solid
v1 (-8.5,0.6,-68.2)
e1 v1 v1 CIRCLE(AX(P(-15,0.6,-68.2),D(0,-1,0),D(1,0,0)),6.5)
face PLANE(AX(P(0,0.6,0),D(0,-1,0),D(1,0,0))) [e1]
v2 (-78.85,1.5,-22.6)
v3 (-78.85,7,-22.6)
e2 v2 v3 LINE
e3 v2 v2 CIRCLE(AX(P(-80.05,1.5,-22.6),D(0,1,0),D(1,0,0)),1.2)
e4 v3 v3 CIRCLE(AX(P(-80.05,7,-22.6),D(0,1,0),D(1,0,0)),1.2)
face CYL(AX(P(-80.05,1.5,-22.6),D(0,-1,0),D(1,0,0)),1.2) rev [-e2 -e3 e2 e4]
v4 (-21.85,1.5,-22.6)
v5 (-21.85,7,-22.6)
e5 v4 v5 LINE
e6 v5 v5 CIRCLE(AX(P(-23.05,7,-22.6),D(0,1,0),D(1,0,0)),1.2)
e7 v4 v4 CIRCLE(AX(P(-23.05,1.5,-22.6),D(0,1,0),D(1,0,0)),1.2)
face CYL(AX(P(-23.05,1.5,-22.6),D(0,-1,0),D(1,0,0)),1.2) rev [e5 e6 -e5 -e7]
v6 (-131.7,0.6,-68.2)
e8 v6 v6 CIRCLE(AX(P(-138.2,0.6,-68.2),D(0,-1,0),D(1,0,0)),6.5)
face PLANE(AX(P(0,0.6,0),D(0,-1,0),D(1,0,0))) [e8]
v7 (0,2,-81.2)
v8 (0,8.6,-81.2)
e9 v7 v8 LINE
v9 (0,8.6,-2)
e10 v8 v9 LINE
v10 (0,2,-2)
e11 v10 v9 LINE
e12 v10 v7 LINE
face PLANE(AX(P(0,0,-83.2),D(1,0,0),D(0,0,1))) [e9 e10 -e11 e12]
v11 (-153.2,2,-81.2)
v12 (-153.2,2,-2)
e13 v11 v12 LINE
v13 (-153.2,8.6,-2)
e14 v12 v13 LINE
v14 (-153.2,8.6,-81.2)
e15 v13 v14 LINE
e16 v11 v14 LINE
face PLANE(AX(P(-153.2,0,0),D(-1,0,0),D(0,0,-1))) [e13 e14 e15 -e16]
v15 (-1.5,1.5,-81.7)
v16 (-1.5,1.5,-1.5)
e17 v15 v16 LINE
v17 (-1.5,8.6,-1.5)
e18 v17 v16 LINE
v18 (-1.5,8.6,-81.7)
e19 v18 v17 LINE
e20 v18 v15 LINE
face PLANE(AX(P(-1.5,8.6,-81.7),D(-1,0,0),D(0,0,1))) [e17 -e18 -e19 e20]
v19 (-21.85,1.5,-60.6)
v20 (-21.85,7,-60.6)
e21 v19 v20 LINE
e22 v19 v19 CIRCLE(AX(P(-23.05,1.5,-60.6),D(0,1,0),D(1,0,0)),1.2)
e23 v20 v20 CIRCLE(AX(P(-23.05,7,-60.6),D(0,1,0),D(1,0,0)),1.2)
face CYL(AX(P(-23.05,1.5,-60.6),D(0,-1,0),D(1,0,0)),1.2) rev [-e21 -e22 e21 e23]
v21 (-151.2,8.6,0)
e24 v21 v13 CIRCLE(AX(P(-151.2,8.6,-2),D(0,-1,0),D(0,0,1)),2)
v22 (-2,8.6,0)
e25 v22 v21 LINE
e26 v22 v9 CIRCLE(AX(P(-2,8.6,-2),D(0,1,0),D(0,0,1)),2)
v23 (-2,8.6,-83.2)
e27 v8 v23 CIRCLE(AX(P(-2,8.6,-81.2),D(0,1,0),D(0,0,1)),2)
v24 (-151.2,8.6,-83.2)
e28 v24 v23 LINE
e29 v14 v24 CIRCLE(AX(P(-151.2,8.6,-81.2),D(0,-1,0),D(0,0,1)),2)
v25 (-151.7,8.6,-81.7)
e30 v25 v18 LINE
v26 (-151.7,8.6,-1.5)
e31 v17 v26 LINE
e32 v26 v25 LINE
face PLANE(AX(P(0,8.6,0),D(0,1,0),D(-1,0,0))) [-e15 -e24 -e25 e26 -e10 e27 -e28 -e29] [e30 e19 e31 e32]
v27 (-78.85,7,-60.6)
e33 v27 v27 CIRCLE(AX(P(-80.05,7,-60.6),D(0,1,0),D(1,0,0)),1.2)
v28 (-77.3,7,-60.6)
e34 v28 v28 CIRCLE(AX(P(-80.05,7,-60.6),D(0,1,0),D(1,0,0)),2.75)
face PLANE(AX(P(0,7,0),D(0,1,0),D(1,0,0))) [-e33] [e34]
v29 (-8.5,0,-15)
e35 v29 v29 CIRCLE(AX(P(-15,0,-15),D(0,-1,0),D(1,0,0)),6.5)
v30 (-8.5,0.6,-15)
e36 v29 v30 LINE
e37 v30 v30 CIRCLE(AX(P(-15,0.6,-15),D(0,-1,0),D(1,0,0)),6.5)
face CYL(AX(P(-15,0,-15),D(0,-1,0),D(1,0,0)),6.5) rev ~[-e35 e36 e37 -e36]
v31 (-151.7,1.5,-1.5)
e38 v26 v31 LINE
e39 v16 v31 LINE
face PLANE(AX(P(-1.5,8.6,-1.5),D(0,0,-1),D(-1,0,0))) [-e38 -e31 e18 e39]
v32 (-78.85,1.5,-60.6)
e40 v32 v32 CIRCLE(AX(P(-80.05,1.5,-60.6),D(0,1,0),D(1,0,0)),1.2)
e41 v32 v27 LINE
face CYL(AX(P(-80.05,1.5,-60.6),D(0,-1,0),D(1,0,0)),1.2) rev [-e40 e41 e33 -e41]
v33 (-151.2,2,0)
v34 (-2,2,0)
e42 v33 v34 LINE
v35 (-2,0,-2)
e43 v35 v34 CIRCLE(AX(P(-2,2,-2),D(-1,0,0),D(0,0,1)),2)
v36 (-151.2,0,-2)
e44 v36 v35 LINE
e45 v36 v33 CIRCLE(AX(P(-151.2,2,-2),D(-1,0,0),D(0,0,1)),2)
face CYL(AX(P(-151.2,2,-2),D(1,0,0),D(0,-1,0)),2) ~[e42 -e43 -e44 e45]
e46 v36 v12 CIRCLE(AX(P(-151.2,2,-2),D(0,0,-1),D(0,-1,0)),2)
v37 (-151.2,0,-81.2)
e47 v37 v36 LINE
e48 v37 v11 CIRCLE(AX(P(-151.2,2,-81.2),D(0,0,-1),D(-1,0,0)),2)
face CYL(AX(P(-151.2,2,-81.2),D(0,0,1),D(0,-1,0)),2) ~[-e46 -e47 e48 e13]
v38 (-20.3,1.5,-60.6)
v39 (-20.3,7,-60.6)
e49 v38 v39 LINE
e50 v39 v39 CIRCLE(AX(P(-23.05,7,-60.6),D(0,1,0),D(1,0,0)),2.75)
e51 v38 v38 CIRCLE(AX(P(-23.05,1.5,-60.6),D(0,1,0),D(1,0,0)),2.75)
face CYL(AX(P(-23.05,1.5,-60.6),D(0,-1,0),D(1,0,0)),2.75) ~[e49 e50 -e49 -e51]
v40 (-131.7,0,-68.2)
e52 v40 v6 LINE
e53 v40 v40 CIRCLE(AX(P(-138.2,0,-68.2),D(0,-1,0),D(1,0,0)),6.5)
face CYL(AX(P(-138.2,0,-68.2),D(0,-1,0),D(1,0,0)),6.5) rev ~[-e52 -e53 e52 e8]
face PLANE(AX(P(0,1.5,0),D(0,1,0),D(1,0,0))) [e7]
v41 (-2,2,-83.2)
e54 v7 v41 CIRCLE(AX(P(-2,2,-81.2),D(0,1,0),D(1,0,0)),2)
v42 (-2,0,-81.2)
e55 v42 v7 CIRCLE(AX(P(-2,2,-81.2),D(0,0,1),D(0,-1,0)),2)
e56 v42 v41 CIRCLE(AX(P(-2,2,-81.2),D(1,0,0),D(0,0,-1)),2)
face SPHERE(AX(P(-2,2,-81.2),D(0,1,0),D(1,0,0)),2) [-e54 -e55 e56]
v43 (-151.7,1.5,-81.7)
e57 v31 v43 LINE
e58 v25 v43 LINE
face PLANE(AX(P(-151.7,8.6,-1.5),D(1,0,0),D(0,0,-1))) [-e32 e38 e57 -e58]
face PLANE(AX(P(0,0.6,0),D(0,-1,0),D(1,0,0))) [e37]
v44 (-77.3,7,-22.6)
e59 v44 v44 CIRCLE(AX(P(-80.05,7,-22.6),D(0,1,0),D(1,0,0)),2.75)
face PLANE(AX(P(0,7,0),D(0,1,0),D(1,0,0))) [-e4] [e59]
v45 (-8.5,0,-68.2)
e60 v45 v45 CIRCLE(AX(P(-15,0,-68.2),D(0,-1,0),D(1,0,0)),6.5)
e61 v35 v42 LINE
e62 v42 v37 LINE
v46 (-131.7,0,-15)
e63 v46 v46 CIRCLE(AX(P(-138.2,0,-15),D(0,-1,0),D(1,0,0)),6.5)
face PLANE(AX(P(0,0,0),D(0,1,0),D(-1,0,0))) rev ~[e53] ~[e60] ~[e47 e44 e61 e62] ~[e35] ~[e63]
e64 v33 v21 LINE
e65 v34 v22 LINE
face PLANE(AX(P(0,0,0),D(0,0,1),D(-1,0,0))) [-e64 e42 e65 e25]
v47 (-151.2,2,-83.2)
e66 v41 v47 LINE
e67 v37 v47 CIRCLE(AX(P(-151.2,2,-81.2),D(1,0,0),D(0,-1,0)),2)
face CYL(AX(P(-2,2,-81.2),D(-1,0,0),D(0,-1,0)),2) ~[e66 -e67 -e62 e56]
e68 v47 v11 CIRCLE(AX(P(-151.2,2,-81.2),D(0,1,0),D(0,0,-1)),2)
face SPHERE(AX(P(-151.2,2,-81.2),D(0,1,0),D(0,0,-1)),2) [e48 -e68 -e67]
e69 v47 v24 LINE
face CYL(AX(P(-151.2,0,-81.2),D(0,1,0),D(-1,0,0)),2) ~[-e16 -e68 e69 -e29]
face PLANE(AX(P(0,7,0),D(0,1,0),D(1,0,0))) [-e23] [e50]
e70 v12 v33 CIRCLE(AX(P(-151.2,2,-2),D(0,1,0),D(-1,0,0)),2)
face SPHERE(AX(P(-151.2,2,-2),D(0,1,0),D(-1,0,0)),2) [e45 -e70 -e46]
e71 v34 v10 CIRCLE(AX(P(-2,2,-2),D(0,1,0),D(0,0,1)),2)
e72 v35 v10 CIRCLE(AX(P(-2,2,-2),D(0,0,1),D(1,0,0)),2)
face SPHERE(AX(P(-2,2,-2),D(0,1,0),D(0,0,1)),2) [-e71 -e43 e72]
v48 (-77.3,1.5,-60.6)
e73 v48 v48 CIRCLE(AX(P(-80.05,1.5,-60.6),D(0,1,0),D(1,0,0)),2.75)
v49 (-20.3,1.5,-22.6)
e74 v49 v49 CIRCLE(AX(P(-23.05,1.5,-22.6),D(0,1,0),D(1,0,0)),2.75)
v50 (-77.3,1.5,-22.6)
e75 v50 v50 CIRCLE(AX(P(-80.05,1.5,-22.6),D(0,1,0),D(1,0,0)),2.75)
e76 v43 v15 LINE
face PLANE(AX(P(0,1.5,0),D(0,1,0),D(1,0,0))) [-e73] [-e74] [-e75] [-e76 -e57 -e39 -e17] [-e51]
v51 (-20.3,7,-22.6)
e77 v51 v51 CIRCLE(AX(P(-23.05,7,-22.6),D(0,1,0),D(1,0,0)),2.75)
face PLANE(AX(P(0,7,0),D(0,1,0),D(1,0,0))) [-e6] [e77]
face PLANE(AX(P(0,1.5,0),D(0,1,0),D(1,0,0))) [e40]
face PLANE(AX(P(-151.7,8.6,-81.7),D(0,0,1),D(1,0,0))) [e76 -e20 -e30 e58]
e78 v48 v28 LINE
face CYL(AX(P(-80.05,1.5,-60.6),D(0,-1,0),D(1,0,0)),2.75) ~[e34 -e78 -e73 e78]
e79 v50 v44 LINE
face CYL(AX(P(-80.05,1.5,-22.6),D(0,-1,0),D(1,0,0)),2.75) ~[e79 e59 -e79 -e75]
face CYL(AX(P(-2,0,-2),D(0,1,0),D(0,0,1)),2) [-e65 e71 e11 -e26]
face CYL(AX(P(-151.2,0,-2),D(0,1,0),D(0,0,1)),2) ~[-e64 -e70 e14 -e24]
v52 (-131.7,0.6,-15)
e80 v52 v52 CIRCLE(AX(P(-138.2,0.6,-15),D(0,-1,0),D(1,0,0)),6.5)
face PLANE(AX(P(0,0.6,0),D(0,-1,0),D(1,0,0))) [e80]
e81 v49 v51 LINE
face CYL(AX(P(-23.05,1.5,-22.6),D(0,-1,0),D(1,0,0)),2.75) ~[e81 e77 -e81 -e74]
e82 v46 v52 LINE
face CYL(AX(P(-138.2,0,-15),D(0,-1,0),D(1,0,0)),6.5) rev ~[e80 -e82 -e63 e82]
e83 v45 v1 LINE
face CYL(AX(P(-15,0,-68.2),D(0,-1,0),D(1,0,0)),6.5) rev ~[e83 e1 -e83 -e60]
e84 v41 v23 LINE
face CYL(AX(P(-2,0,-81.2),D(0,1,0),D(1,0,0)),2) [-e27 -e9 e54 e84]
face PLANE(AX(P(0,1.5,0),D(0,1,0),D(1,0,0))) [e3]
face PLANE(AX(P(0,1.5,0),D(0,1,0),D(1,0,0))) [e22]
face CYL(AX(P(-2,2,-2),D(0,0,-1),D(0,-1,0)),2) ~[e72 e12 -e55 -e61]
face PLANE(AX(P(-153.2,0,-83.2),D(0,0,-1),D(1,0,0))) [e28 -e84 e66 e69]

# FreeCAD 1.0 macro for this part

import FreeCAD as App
import Part
import Sketcher
from FreeCAD import Vector
Q = App.Units.Quantity


def edges_at(feature, points):
    """Names of the edges that pass closest to the given points."""
    edges = feature.Shape.Edges
    near = lambda p: min(range(len(edges)), key=lambda i: edges[i].distToShape(Part.Vertex(*p))[0])
    return sorted({f"Edge{near(p) + 1}" for p in points})

doc = App.newDocument("Part")
body = doc.addObject("PartDesign::Body", "Body")

# Sketch on XZ plane
sketch1 = body.newObject("Sketcher::SketchObject", "Sketch")
sketch1.AttachmentSupport = (doc.getObject("XZ_Plane"), [""])
sketch1.MapMode = "FlatFace"
sketch1.addGeometry(Part.LineSegment(Vector(-153, 0, 0), Vector(0, 0, 0)), False)
sketch1.addGeometry(Part.LineSegment(Vector(0, 0, 0), Vector(0, -83, 0)), False)
sketch1.addGeometry(Part.LineSegment(Vector(0, -83, 0), Vector(-153, -83, 0)), False)
sketch1.addGeometry(Part.LineSegment(Vector(-153, -83, 0), Vector(-153, 0, 0)), False)
sketch1.addConstraint(Sketcher.Constraint("Coincident", 0, 2, 1, 1))
sketch1.addConstraint(Sketcher.Constraint("Coincident", 1, 2, 2, 1))
sketch1.addConstraint(Sketcher.Constraint("Coincident", 2, 2, 3, 1))
sketch1.addConstraint(Sketcher.Constraint("Coincident", 3, 2, 0, 1))
sketch1.addConstraint(Sketcher.Constraint("Horizontal", 0))
sketch1.addConstraint(Sketcher.Constraint("Vertical", 1))
sketch1.addConstraint(Sketcher.Constraint("Horizontal", 2))
sketch1.addConstraint(Sketcher.Constraint("Vertical", 3))
sketch1.addConstraint(Sketcher.Constraint("Coincident", 0, 2, -1, 1))
sketch1.addConstraint(Sketcher.Constraint("DistanceX", 0, 1, 0, 2, Q("153.2 mm")))
sketch1.addConstraint(Sketcher.Constraint("DistanceY", 1, 2, 1, 1, Q("83.2 mm")))
pad1 = body.newObject("PartDesign::Pad", "Pad")
pad1.Profile = sketch1
pad1.Length = 8.6
pad1.Reversed = True

# Sketch on XZ plane
sketch2 = body.newObject("Sketcher::SketchObject", "Sketch001")
sketch2.AttachmentSupport = (doc.getObject("XZ_Plane"), [""])
sketch2.MapMode = "FlatFace"
sketch2.AttachmentOffset = App.Placement(Vector(0, 0, -8.6), App.Rotation())
sketch2.addGeometry(Part.LineSegment(Vector(-152, -2, 0), Vector(-2, -2, 0)), False)
sketch2.addGeometry(Part.LineSegment(Vector(-2, -2, 0), Vector(-2, -82, 0)), False)
sketch2.addGeometry(Part.LineSegment(Vector(-2, -82, 0), Vector(-152, -82, 0)), False)
sketch2.addGeometry(Part.LineSegment(Vector(-152, -82, 0), Vector(-152, -2, 0)), False)
sketch2.addConstraint(Sketcher.Constraint("Coincident", 0, 2, 1, 1))
sketch2.addConstraint(Sketcher.Constraint("Coincident", 1, 2, 2, 1))
sketch2.addConstraint(Sketcher.Constraint("Coincident", 2, 2, 3, 1))
sketch2.addConstraint(Sketcher.Constraint("Coincident", 3, 2, 0, 1))
sketch2.addConstraint(Sketcher.Constraint("Horizontal", 0))
sketch2.addConstraint(Sketcher.Constraint("Vertical", 1))
sketch2.addConstraint(Sketcher.Constraint("Horizontal", 2))
sketch2.addConstraint(Sketcher.Constraint("Vertical", 3))
sketch2.addConstraint(Sketcher.Constraint("DistanceX", 0, 2, -1, 1, Q("1.5 mm")))
sketch2.addConstraint(Sketcher.Constraint("DistanceY", 0, 2, -1, 1, Q("1.5 mm")))
sketch2.addConstraint(Sketcher.Constraint("DistanceX", 0, 1, 0, 2, Q("150.2 mm")))
sketch2.addConstraint(Sketcher.Constraint("DistanceY", 1, 2, 1, 1, Q("80.2 mm")))
pocket1 = body.newObject("PartDesign::Pocket", "Pocket")
pocket1.Profile = sketch2
pocket1.Length = 7.1
pocket1.Reversed = True

# Sketch on XZ plane
sketch3 = body.newObject("Sketcher::SketchObject", "Sketch002")
sketch3.AttachmentSupport = (doc.getObject("XZ_Plane"), [""])
sketch3.MapMode = "FlatFace"
sketch3.AttachmentOffset = App.Placement(Vector(0, 0, -1.5), App.Rotation())
sketch3.addGeometry(Part.Circle(Vector(-80, -22.6, 0), Vector(0, 0, 1), 2.8), False)
sketch3.addGeometry(Part.Circle(Vector(-80, -22.6, 0), Vector(0, 0, 1), 1.2), False)
sketch3.addGeometry(Part.Circle(Vector(-80, -60.6, 0), Vector(0, 0, 1), 2.8), False)
sketch3.addGeometry(Part.Circle(Vector(-80, -60.6, 0), Vector(0, 0, 1), 1.2), False)
sketch3.addGeometry(Part.Circle(Vector(-23.1, -22.6, 0), Vector(0, 0, 1), 2.8), False)
sketch3.addGeometry(Part.Circle(Vector(-23.1, -22.6, 0), Vector(0, 0, 1), 1.2), False)
sketch3.addGeometry(Part.Circle(Vector(-23.1, -60.6, 0), Vector(0, 0, 1), 2.8), False)
sketch3.addGeometry(Part.Circle(Vector(-23.1, -60.6, 0), Vector(0, 0, 1), 1.2), False)
sketch3.addConstraint(Sketcher.Constraint("Coincident", 1, 3, 0, 3))
sketch3.addConstraint(Sketcher.Constraint("Coincident", 3, 3, 2, 3))
sketch3.addConstraint(Sketcher.Constraint("Coincident", 5, 3, 4, 3))
sketch3.addConstraint(Sketcher.Constraint("Coincident", 7, 3, 6, 3))
sketch3.addConstraint(Sketcher.Constraint("Equal", 0, 2))
sketch3.addConstraint(Sketcher.Constraint("Equal", 1, 3))
sketch3.addConstraint(Sketcher.Constraint("Equal", 2, 4))
sketch3.addConstraint(Sketcher.Constraint("Equal", 3, 5))
sketch3.addConstraint(Sketcher.Constraint("Equal", 4, 6))
sketch3.addConstraint(Sketcher.Constraint("Equal", 5, 7))
sketch3.addConstraint(Sketcher.Constraint("Horizontal", 1, 3, 4, 3))
sketch3.addConstraint(Sketcher.Constraint("Horizontal", 3, 3, 6, 3))
sketch3.addConstraint(Sketcher.Constraint("Vertical", 1, 3, 2, 3))
sketch3.addConstraint(Sketcher.Constraint("Vertical", 5, 3, 6, 3))
sketch3.addConstraint(Sketcher.Constraint("Diameter", 0, Q("5.5 mm")))
sketch3.addConstraint(Sketcher.Constraint("Diameter", 1, Q("2.4 mm")))
sketch3.addConstraint(Sketcher.Constraint("DistanceY", 2, 3, 0, 3, Q("38 mm")))
sketch3.addConstraint(Sketcher.Constraint("DistanceX", 0, 3, 4, 3, Q("57 mm")))
sketch3.addConstraint(Sketcher.Constraint("DistanceY", 0, 3, -1, 1, Q("22.6 mm")))
sketch3.addConstraint(Sketcher.Constraint("DistanceX", 0, 3, -1, 1, Q("80.05 mm")))
pad2 = body.newObject("PartDesign::Pad", "Pad001")
pad2.Profile = sketch3
pad2.Length = 5.5
pad2.Reversed = True
doc.recompute()

fillet = body.newObject("PartDesign::Fillet", "Fillet")
fillet.Base = (pad2, edges_at(pad2, [
    (0, 4.3, 0),
    (0, 4.3, -83.2),
    (-153.2, 4.3, 0),
    (-153.2, 4.3, -83.2),
]))
fillet.Radius = 2
doc.recompute()

fillet2 = body.newObject("PartDesign::Fillet", "Fillet001")
fillet2.Base = (fillet, edges_at(fillet, [
    (-0.586, 0, -0.586),
    (0, 0, -41.6),
    (-0.586, 0, -82.614),
    (-76.6, 0, -83.2),
    (-152.614, 0, -82.614),
    (-153.2, 0, -41.6),
    (-152.614, 0, -0.586),
    (-76.6, 0, 0),
]))
fillet2.Radius = 2

# Sketch on XZ plane
sketch4 = body.newObject("Sketcher::SketchObject", "Sketch003")
sketch4.AttachmentSupport = (doc.getObject("XZ_Plane"), [""])
sketch4.MapMode = "FlatFace"
sketch4.addGeometry(Part.Circle(Vector(-138, -68, 0), Vector(0, 0, 1), 6), False)
sketch4.addGeometry(Part.Circle(Vector(-138, -15, 0), Vector(0, 0, 1), 6), False)
sketch4.addGeometry(Part.Circle(Vector(-15, -68, 0), Vector(0, 0, 1), 6), False)
sketch4.addGeometry(Part.Circle(Vector(-15, -15, 0), Vector(0, 0, 1), 6), False)
sketch4.addConstraint(Sketcher.Constraint("Equal", 0, 1))
sketch4.addConstraint(Sketcher.Constraint("Equal", 1, 2))
sketch4.addConstraint(Sketcher.Constraint("Equal", 2, 3))
sketch4.addConstraint(Sketcher.Constraint("Horizontal", 0, 3, 2, 3))
sketch4.addConstraint(Sketcher.Constraint("Horizontal", 1, 3, 3, 3))
sketch4.addConstraint(Sketcher.Constraint("Vertical", 0, 3, 1, 3))
sketch4.addConstraint(Sketcher.Constraint("Vertical", 2, 3, 3, 3))
sketch4.addConstraint(Sketcher.Constraint("Diameter", 0, Q("13 mm")))
sketch4.addConstraint(Sketcher.Constraint("DistanceY", 1, 3, -1, 1, Q("15 mm")))
sketch4.addConstraint(Sketcher.Constraint("DistanceX", 2, 3, -1, 1, Q("15 mm")))
sketch4.addConstraint(Sketcher.Constraint("DistanceX", 0, 3, -1, 1, Q("138.2 mm")))
sketch4.addConstraint(Sketcher.Constraint("DistanceY", 0, 3, -1, 1, Q("68.2 mm")))
pocket2 = body.newObject("PartDesign::Pocket", "Pocket001")
pocket2.Profile = sketch4
pocket2.Length = 0.6

doc.recompute()
